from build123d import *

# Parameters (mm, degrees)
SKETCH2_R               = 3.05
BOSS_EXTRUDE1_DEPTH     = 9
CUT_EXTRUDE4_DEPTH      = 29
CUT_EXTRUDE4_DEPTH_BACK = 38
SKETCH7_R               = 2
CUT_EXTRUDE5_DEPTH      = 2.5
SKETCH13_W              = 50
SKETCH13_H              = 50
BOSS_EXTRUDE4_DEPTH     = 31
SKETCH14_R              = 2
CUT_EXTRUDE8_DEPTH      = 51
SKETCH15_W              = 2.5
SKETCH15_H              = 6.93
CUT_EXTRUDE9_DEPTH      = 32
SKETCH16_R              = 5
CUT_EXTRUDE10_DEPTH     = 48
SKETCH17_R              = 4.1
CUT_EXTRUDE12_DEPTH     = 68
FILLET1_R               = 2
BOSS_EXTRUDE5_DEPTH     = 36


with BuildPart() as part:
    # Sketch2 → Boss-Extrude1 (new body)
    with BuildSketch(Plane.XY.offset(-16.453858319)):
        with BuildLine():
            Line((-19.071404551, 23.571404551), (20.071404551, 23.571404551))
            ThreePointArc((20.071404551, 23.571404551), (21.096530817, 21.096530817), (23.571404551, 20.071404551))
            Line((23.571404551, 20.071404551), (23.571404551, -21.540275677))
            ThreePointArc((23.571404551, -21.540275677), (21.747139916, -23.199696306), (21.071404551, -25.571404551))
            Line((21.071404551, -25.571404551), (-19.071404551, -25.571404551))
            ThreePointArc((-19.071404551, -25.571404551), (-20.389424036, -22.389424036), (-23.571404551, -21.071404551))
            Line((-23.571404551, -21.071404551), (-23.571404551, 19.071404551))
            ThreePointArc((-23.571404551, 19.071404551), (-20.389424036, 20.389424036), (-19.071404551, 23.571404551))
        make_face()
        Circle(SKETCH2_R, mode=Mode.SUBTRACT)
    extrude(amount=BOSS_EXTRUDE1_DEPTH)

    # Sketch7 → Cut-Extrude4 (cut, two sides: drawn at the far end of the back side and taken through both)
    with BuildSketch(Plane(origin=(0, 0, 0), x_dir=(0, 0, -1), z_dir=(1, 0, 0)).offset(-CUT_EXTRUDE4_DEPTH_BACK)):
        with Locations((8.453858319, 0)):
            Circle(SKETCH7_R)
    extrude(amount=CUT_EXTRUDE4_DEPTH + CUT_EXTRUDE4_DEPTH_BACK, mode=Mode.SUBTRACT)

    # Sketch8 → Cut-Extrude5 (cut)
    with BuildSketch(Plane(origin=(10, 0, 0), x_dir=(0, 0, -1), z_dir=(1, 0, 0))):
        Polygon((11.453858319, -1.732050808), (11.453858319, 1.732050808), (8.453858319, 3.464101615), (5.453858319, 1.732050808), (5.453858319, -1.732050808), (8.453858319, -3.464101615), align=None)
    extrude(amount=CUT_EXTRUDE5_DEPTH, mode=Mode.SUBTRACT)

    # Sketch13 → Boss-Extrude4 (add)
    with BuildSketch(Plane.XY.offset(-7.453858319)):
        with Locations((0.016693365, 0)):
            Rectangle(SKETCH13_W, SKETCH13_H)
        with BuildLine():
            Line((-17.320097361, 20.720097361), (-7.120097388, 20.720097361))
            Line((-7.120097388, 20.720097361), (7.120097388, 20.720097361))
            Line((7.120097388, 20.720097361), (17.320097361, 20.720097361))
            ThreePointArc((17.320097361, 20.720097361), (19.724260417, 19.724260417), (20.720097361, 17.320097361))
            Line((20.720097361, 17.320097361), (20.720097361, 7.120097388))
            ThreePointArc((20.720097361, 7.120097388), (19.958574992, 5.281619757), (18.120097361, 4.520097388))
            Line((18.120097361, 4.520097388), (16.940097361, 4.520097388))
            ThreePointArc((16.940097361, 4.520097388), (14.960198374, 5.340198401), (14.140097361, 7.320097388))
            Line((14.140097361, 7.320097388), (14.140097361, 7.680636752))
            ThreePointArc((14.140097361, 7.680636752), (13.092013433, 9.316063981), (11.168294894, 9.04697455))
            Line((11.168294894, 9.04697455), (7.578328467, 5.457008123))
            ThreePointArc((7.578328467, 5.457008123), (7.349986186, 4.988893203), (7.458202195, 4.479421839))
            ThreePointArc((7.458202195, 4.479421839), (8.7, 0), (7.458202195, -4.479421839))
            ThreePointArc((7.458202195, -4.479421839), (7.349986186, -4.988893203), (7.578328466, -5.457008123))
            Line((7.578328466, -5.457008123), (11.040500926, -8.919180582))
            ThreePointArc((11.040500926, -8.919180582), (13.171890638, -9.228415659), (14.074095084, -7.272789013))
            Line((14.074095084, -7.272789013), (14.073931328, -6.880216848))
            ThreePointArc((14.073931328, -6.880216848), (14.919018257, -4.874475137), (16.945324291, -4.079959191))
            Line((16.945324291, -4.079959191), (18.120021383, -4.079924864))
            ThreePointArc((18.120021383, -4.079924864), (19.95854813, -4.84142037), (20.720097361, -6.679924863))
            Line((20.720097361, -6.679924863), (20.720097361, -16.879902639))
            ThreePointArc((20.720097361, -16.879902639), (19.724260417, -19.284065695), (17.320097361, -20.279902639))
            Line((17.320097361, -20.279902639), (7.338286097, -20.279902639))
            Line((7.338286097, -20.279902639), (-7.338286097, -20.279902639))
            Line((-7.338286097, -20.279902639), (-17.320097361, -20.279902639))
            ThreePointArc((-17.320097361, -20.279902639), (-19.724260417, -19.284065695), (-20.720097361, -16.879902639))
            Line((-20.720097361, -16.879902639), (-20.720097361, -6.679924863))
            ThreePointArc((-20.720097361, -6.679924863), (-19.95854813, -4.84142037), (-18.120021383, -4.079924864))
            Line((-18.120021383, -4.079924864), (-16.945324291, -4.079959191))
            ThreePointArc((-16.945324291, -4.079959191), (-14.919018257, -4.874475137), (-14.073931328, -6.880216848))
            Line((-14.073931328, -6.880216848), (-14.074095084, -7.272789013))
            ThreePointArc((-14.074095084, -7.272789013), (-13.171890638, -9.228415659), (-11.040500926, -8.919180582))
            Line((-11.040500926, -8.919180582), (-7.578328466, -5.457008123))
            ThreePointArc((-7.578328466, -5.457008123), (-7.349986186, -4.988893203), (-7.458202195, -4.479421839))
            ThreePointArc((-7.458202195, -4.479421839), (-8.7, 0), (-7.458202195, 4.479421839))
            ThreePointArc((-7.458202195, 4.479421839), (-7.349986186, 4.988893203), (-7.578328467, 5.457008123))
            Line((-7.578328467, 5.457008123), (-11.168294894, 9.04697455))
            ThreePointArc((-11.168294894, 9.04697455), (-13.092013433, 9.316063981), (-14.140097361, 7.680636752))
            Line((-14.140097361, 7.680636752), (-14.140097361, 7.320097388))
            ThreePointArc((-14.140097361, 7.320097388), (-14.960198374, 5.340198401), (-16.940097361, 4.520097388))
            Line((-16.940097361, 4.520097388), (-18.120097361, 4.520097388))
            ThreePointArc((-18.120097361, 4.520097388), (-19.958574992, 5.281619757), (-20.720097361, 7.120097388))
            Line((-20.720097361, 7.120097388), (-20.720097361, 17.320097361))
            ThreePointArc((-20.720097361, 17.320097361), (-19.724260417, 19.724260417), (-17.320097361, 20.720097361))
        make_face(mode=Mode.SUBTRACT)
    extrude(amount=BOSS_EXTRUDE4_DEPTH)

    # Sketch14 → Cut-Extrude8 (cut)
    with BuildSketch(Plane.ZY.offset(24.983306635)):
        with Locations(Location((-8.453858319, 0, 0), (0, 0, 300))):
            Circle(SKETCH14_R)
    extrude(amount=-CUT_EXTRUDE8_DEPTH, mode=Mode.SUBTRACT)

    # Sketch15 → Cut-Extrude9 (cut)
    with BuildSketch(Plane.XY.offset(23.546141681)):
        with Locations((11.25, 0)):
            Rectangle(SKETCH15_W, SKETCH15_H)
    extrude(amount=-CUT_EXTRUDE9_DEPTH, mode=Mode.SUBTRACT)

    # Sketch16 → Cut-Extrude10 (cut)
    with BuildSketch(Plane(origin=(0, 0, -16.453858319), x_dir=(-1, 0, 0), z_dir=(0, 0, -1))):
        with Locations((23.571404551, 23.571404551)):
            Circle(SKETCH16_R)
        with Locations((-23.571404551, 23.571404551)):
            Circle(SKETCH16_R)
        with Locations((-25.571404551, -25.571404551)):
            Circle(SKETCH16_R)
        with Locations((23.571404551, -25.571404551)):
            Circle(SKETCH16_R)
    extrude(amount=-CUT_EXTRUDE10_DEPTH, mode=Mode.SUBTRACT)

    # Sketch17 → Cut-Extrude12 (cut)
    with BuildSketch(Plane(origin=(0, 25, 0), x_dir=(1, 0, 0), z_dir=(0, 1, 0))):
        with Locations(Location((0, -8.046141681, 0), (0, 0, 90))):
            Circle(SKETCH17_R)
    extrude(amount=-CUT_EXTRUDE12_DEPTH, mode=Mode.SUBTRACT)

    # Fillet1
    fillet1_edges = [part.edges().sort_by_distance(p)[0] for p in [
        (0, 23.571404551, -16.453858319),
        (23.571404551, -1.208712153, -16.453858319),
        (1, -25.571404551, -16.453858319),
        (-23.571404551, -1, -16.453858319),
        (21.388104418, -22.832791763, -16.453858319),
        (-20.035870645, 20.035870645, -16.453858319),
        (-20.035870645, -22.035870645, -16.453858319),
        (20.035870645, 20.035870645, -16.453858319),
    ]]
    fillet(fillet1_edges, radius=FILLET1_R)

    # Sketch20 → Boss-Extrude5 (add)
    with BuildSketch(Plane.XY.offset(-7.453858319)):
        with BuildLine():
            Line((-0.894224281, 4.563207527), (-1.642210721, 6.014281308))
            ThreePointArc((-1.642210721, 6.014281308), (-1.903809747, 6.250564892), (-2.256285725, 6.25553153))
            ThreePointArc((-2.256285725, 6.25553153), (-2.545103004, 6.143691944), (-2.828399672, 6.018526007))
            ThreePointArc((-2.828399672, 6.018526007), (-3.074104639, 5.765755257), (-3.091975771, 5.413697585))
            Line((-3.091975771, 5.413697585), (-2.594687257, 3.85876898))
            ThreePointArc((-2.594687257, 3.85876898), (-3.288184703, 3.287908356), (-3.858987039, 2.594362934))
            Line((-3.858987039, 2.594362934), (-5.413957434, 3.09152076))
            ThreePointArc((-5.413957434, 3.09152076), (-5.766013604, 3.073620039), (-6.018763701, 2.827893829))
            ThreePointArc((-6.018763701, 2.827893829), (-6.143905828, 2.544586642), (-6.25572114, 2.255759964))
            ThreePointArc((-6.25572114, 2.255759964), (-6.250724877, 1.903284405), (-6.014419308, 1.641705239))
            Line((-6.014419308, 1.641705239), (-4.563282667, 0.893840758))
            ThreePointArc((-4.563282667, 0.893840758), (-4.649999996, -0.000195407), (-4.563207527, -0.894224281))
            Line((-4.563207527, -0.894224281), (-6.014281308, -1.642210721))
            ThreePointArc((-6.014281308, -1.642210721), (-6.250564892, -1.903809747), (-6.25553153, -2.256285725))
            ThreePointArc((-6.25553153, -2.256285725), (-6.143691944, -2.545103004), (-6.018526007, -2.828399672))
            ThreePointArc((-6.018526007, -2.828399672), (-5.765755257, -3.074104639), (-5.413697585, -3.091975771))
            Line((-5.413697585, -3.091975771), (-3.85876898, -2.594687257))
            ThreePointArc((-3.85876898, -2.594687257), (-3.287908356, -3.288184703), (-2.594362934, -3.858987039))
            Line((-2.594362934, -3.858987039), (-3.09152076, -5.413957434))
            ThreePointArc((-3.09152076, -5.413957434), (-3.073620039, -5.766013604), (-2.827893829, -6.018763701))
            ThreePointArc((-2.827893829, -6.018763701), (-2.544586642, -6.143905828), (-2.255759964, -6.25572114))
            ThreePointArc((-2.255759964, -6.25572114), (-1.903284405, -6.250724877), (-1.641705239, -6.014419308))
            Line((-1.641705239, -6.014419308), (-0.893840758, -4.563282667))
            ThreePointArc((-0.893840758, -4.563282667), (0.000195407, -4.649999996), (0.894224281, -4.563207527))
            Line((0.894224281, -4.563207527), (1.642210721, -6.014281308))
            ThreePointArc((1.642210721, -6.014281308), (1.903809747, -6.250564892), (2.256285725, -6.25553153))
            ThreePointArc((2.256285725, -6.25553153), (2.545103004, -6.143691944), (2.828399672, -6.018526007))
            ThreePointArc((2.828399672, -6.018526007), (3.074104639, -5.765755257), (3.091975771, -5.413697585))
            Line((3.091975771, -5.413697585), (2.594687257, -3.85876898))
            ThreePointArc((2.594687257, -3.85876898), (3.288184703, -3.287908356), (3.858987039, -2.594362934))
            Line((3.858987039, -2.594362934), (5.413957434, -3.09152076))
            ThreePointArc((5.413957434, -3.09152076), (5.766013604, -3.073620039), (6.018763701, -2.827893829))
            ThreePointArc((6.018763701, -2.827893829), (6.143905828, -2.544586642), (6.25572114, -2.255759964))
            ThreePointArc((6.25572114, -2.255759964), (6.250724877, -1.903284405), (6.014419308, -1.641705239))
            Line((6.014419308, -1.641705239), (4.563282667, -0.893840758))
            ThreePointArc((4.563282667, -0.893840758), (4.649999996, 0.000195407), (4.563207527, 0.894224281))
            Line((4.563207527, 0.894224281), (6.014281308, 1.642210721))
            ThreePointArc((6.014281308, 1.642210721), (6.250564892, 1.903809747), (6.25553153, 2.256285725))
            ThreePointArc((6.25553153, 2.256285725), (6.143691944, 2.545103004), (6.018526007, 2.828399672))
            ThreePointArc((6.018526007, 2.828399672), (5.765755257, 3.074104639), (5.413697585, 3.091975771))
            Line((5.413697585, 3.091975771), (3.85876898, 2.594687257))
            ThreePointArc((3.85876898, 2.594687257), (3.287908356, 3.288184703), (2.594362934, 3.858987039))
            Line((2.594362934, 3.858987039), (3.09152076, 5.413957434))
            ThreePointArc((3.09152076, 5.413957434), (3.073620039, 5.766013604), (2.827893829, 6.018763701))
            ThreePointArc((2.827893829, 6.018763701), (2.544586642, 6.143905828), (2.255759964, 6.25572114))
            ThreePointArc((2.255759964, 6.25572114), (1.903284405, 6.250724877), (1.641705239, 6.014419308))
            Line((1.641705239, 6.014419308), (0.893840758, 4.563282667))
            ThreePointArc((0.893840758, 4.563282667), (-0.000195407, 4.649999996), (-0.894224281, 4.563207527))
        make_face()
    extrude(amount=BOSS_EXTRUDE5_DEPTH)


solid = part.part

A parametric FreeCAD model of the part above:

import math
import FreeCAD as App
import Part
import Sketcher
Q = App.Units.Quantity


def edges_at(feature, points):
    """Names of the edges that pass closest to the given points."""
    edges = feature.Shape.Edges
    near = lambda p: min(range(len(edges)), key=lambda i: edges[i].distToShape(Part.Vertex(*p))[0])
    return sorted({f"Edge{near(p) + 1}" for p in points})

doc = App.newDocument("Part")
body = doc.addObject("PartDesign::Body", "Body")

# Sketch on XY plane
sketch1 = body.newObject("Sketcher::SketchObject", "Sketch")
sketch1.AttachmentSupport = (doc.getObject("XY_Plane"), [""])
sketch1.MapMode = "FlatFace"
sketch1.AttachmentOffset = App.Placement(App.Vector(0, 0, -16.453858), App.Rotation())
sketch1.addGeometry(Part.LineSegment(App.Vector(20.071405, 23.571405, 0), App.Vector(-19.071405, 23.571405, 0)), False)
sketch1.addGeometry(Part.ArcOfCircle(Part.Circle(App.Vector(-23.571405, 23.571405, 0), App.Vector(0, 0, 1), 4.5), math.radians(-90), math.radians(0)), False)
sketch1.addGeometry(Part.LineSegment(App.Vector(-23.571405, 19.071405, 0), App.Vector(-23.571405, -21.071405, 0)), False)
sketch1.addGeometry(Part.ArcOfCircle(Part.Circle(App.Vector(-23.571405, -25.571405, 0), App.Vector(0, 0, 1), 4.5), math.radians(0), math.radians(90)), False)
sketch1.addGeometry(Part.LineSegment(App.Vector(-19.071405, -25.571405, 0), App.Vector(21.071405, -25.571405, 0)), False)
sketch1.addGeometry(Part.ArcOfCircle(Part.Circle(App.Vector(25.571405, -25.571405, 0), App.Vector(0, 0, 1), 4.5), math.radians(116.3878), math.radians(180)), False)
sketch1.addGeometry(Part.LineSegment(App.Vector(23.571405, -21.540276, 0), App.Vector(23.571405, 20.071405, 0)), False)
sketch1.addGeometry(Part.ArcOfCircle(Part.Circle(App.Vector(23.571405, 23.571405, 0), App.Vector(0, 0, 1), 3.5), math.radians(-180), math.radians(-90)), False)
sketch1.addGeometry(Part.Circle(App.Vector(0, 0, 0), App.Vector(0, 0, 1), 3.05), False)
sketch1.addConstraint(Sketcher.Constraint("Coincident", 0, 2, 1, 2))
sketch1.addConstraint(Sketcher.Constraint("Coincident", 1, 1, 2, 1))
sketch1.addConstraint(Sketcher.Constraint("Coincident", 2, 2, 3, 2))
sketch1.addConstraint(Sketcher.Constraint("Coincident", 3, 1, 4, 1))
sketch1.addConstraint(Sketcher.Constraint("Coincident", 4, 2, 5, 2))
sketch1.addConstraint(Sketcher.Constraint("Coincident", 5, 1, 6, 1))
sketch1.addConstraint(Sketcher.Constraint("Coincident", 6, 2, 7, 2))
sketch1.addConstraint(Sketcher.Constraint("Coincident", 7, 1, 0, 1))
sketch1.addConstraint(Sketcher.Constraint("Horizontal", 0))
sketch1.addConstraint(Sketcher.Constraint("Vertical", 2))
sketch1.addConstraint(Sketcher.Constraint("Horizontal", 4))
sketch1.addConstraint(Sketcher.Constraint("Vertical", 6))
sketch1.addConstraint(Sketcher.Constraint("Coincident", 8, 3, -1, 1))
sketch1.addConstraint(Sketcher.Constraint("Equal", 1, 3))
sketch1.addConstraint(Sketcher.Constraint("Equal", 3, 5))
sketch1.addConstraint(Sketcher.Constraint("Symmetric", 1, 3, 7, 3, -2))
sketch1.addConstraint(Sketcher.Constraint("Horizontal", 3, 3, 5, 3))
sketch1.addConstraint(Sketcher.Constraint("Horizontal", 7, 3, 0, 2))
sketch1.addConstraint(Sketcher.Constraint("Horizontal", 5, 3, 3, 1))
sketch1.addConstraint(Sketcher.Constraint("Vertical", 1, 3, 3, 3))
sketch1.addConstraint(Sketcher.Constraint("Vertical", 3, 3, 1, 1))
sketch1.addConstraint(Sketcher.Constraint("Vertical", 7, 3, 5, 1))
sketch1.addConstraint(Sketcher.Constraint("Equal", 4, 2))
sketch1.addConstraint(Sketcher.Constraint("Diameter", 8, 6.1))
sketch1.addConstraint(Sketcher.Constraint("Radius", 1, 4.5))
sketch1.addConstraint(Sketcher.Constraint("Radius", 7, 3.5))
sketch1.addConstraint(Sketcher.Constraint("DistanceX", 7, 3, 5, 3, 2.0))
sketch1.addConstraint(Sketcher.Constraint("DistanceX", 0, 2, 0, 1, 39.142809))
sketch1.addConstraint(Sketcher.Constraint("DistanceY", -1, 1, 1, 3, 23.571405))
pad1 = body.newObject("PartDesign::Pad", "Pad")
pad1.Profile = sketch1
pad1.Length = 9

# Sketch on YZ plane
sketch2 = body.newObject("Sketcher::SketchObject", "Sketch001")
sketch2.AttachmentSupport = (doc.getObject("YZ_Plane"), [""])
sketch2.MapMode = "FlatFace"
sketch2.addGeometry(Part.Circle(App.Vector(0, -8.453858, 0), App.Vector(0, 0, 1), 2), False)
sketch2.addConstraint(Sketcher.Constraint("PointOnObject", 0, 3, -2))
sketch2.addConstraint(Sketcher.Constraint("Diameter", 0, 4.0))
sketch2.addConstraint(Sketcher.Constraint("DistanceY", 0, 3, -1, 1, 8.453858))
pocket1 = body.newObject("PartDesign::Pocket", "Pocket")
pocket1.Profile = sketch2
pocket1.Type = "ThroughAll"
pocket1.Midplane = True

# Sketch on YZ plane
sketch3 = body.newObject("Sketcher::SketchObject", "Sketch002")
sketch3.AttachmentSupport = (doc.getObject("YZ_Plane"), [""])
sketch3.MapMode = "FlatFace"
sketch3.AttachmentOffset = App.Placement(App.Vector(0, 0, 10), App.Rotation())
sketch3.addGeometry(Part.LineSegment(App.Vector(-1.732051, -11.453858, 0), App.Vector(1.732051, -11.453858, 0)), False)
sketch3.addGeometry(Part.LineSegment(App.Vector(1.732051, -11.453858, 0), App.Vector(3.464102, -8.453858, 0)), False)
sketch3.addGeometry(Part.LineSegment(App.Vector(3.464102, -8.453858, 0), App.Vector(1.732051, -5.453858, 0)), False)
sketch3.addGeometry(Part.LineSegment(App.Vector(1.732051, -5.453858, 0), App.Vector(-1.732051, -5.453858, 0)), False)
sketch3.addGeometry(Part.LineSegment(App.Vector(-1.732051, -5.453858, 0), App.Vector(-3.464102, -8.453858, 0)), False)
sketch3.addGeometry(Part.LineSegment(App.Vector(-3.464102, -8.453858, 0), App.Vector(-1.732051, -11.453858, 0)), False)
sketch3.addConstraint(Sketcher.Constraint("Coincident", 0, 2, 1, 1))
sketch3.addConstraint(Sketcher.Constraint("Coincident", 1, 2, 2, 1))
sketch3.addConstraint(Sketcher.Constraint("Coincident", 2, 2, 3, 1))
sketch3.addConstraint(Sketcher.Constraint("Coincident", 3, 2, 4, 1))
sketch3.addConstraint(Sketcher.Constraint("Coincident", 4, 2, 5, 1))
sketch3.addConstraint(Sketcher.Constraint("Coincident", 5, 2, 0, 1))
sketch3.addConstraint(Sketcher.Constraint("Horizontal", 0))
sketch3.addConstraint(Sketcher.Constraint("Horizontal", 3))
sketch3.addConstraint(Sketcher.Constraint("Symmetric", 1, 2, 4, 2, -2))
sketch3.addConstraint(Sketcher.Constraint("Parallel", 1, 4))
sketch3.addConstraint(Sketcher.Constraint("Parallel", 2, 5))
sketch3.addConstraint(Sketcher.Constraint("Vertical", 0, 2, 2, 2))
sketch3.addConstraint(Sketcher.Constraint("Vertical", 3, 2, 5, 2))
sketch3.addConstraint(Sketcher.Constraint("Angle", 1, Q("60 deg")))
sketch3.addConstraint(Sketcher.Constraint("DistanceY", 0, 2, 1, 2, 3.0))
sketch3.addConstraint(Sketcher.Constraint("DistanceX", 0, 1, 0, 2, 3.464102))
sketch3.addConstraint(Sketcher.Constraint("DistanceY", 0, 2, -1, 1, 11.453858))
pocket2 = body.newObject("PartDesign::Pocket", "Pocket001")
pocket2.Profile = sketch3
pocket2.Length = 2.5
pocket2.Reversed = True

# Sketch on XY plane
sketch4 = body.newObject("Sketcher::SketchObject", "Sketch003")
sketch4.AttachmentSupport = (doc.getObject("XY_Plane"), [""])
sketch4.MapMode = "FlatFace"
sketch4.AttachmentOffset = App.Placement(App.Vector(0, 0, -7.453858), App.Rotation())
sketch4.addGeometry(Part.LineSegment(App.Vector(-24.983307, 25, 0), App.Vector(-24.983307, -25, 0)), False)
sketch4.addGeometry(Part.LineSegment(App.Vector(-24.983307, -25, 0), App.Vector(25.016693, -25, 0)), False)
sketch4.addGeometry(Part.LineSegment(App.Vector(25.016693, -25, 0), App.Vector(25.016693, 25, 0)), False)
sketch4.addGeometry(Part.LineSegment(App.Vector(25.016693, 25, 0), App.Vector(-24.983307, 25, 0)), False)
sketch4.addGeometry(Part.ArcOfCircle(Part.Circle(App.Vector(-17.320097, 17.320097, 0), App.Vector(0, 0, 1), 3.4), math.radians(90), math.radians(180)), False)
sketch4.addGeometry(Part.LineSegment(App.Vector(-17.320097, 20.720097, 0), App.Vector(17.320097, 20.720097, 0)), False)
sketch4.addGeometry(Part.ArcOfCircle(Part.Circle(App.Vector(17.320097, 17.320097, 0), App.Vector(0, 0, 1), 3.4), math.radians(0), math.radians(90)), False)
sketch4.addGeometry(Part.LineSegment(App.Vector(20.720097, 17.320097, 0), App.Vector(20.720097, 7.120097, 0)), False)
sketch4.addGeometry(Part.ArcOfCircle(Part.Circle(App.Vector(18.120097, 7.120097, 0), App.Vector(0, 0, 1), 2.6), math.radians(-90), math.radians(0)), False)
sketch4.addGeometry(Part.LineSegment(App.Vector(18.120097, 4.520097, 0), App.Vector(16.940097, 4.520097, 0)), False)
sketch4.addGeometry(Part.ArcOfCircle(Part.Circle(App.Vector(16.940097, 7.320097, 0), App.Vector(0, 0, 1), 2.8), math.radians(-180), math.radians(-90)), False)
sketch4.addGeometry(Part.LineSegment(App.Vector(14.140097, 7.320097, 0), App.Vector(14.140097, 7.680637, 0)), False)
sketch4.addGeometry(Part.ArcOfCircle(Part.Circle(App.Vector(12.340097, 7.680637, 0), App.Vector(0, 0, 1), 1.8), math.radians(0), math.radians(130.617144)), False)
sketch4.addGeometry(Part.LineSegment(App.Vector(11.168295, 9.046975, 0), App.Vector(7.578328, 5.457008, 0)), False)
sketch4.addGeometry(Part.ArcOfCircle(Part.Circle(App.Vector(8.144014, 4.891323, 0), App.Vector(0, 0, 1), 0.8), math.radians(135), math.radians(210.989172)), False)
sketch4.addGeometry(Part.ArcOfCircle(Part.Circle(App.Vector(0, 0, 0), App.Vector(0, 0, 1), 8.7), math.radians(-30.989172), math.radians(30.989172)), False)
sketch4.addGeometry(Part.ArcOfCircle(Part.Circle(App.Vector(8.144014, -4.891323, 0), App.Vector(0, 0, 1), 0.8), math.radians(149.010828), math.radians(225)), False)
sketch4.addGeometry(Part.LineSegment(App.Vector(7.578328, -5.457008, 0), App.Vector(11.040501, -8.919181, 0)), False)
sketch4.addGeometry(Part.ArcOfCircle(Part.Circle(App.Vector(12.313293, -7.646388, 0), App.Vector(0, 0, 1), 1.8), math.radians(-135), math.radians(11.979119)), False)
sketch4.addGeometry(Part.LineSegment(App.Vector(14.074095, -7.272789, 0), App.Vector(14.073931, -6.880217, 0)), False)
sketch4.addGeometry(Part.ArcOfCircle(Part.Circle(App.Vector(16.873931, -6.879049, 0), App.Vector(0, 0, 1), 2.8), math.radians(88.538938), math.radians(180.0239)), False)
sketch4.addGeometry(Part.LineSegment(App.Vector(16.945324, -4.079959, 0), App.Vector(18.120021, -4.079925, 0)), False)
sketch4.addGeometry(Part.ArcOfCircle(Part.Circle(App.Vector(18.120097, -6.679925, 0), App.Vector(0, 0, 1), 2.6), math.radians(0), math.radians(90.001674)), False)
sketch4.addGeometry(Part.LineSegment(App.Vector(20.720097, -6.679925, 0), App.Vector(20.720097, -16.879903, 0)), False)
sketch4.addGeometry(Part.ArcOfCircle(Part.Circle(App.Vector(17.320097, -16.879903, 0), App.Vector(0, 0, 1), 3.4), math.radians(-90), math.radians(0)), False)
sketch4.addGeometry(Part.LineSegment(App.Vector(17.320097, -20.279903, 0), App.Vector(-17.320097, -20.279903, 0)), False)
sketch4.addGeometry(Part.ArcOfCircle(Part.Circle(App.Vector(-17.320097, -16.879903, 0), App.Vector(0, 0, 1), 3.4), math.radians(180), math.radians(270)), False)
sketch4.addGeometry(Part.LineSegment(App.Vector(-20.720097, -16.879903, 0), App.Vector(-20.720097, -6.679925, 0)), False)
sketch4.addGeometry(Part.ArcOfCircle(Part.Circle(App.Vector(-18.120097, -6.679925, 0), App.Vector(0, 0, 1), 2.6), math.radians(89.998326), math.radians(180)), False)
sketch4.addGeometry(Part.LineSegment(App.Vector(-18.120021, -4.079925, 0), App.Vector(-16.945324, -4.079959, 0)), False)
sketch4.addGeometry(Part.ArcOfCircle(Part.Circle(App.Vector(-16.873931, -6.879049, 0), App.Vector(0, 0, 1), 2.8), math.radians(-0.0239), math.radians(91.461062)), False)
sketch4.addGeometry(Part.LineSegment(App.Vector(-14.073931, -6.880217, 0), App.Vector(-14.074095, -7.272789, 0)), False)
sketch4.addGeometry(Part.ArcOfCircle(Part.Circle(App.Vector(-12.313293, -7.646388, 0), App.Vector(0, 0, 1), 1.8), math.radians(168.020881), math.radians(315)), False)
sketch4.addGeometry(Part.LineSegment(App.Vector(-11.040501, -8.919181, 0), App.Vector(-7.578328, -5.457008, 0)), False)
sketch4.addGeometry(Part.ArcOfCircle(Part.Circle(App.Vector(-8.144014, -4.891323, 0), App.Vector(0, 0, 1), 0.8), math.radians(-45), math.radians(30.989172)), False)
sketch4.addGeometry(Part.ArcOfCircle(Part.Circle(App.Vector(0, 0, 0), App.Vector(0, 0, 1), 8.7), math.radians(149.010828), math.radians(210.989172)), False)
sketch4.addGeometry(Part.ArcOfCircle(Part.Circle(App.Vector(-8.144014, 4.891323, 0), App.Vector(0, 0, 1), 0.8), math.radians(-30.989172), math.radians(45)), False)
sketch4.addGeometry(Part.LineSegment(App.Vector(-7.578328, 5.457008, 0), App.Vector(-11.168295, 9.046975, 0)), False)
sketch4.addGeometry(Part.ArcOfCircle(Part.Circle(App.Vector(-12.340097, 7.680637, 0), App.Vector(0, 0, 1), 1.8), math.radians(49.382856), math.radians(180)), False)
sketch4.addGeometry(Part.LineSegment(App.Vector(-14.140097, 7.680637, 0), App.Vector(-14.140097, 7.320097, 0)), False)
sketch4.addGeometry(Part.ArcOfCircle(Part.Circle(App.Vector(-16.940097, 7.320097, 0), App.Vector(0, 0, 1), 2.8), math.radians(-90), math.radians(0)), False)
sketch4.addGeometry(Part.LineSegment(App.Vector(-16.940097, 4.520097, 0), App.Vector(-18.120097, 4.520097, 0)), False)
sketch4.addGeometry(Part.ArcOfCircle(Part.Circle(App.Vector(-18.120097, 7.120097, 0), App.Vector(0, 0, 1), 2.6), math.radians(180), math.radians(270)), False)
sketch4.addGeometry(Part.LineSegment(App.Vector(-20.720097, 7.120097, 0), App.Vector(-20.720097, 17.320097, 0)), False)
sketch4.addConstraint(Sketcher.Constraint("Coincident", 0, 2, 1, 1))
sketch4.addConstraint(Sketcher.Constraint("Coincident", 1, 2, 2, 1))
sketch4.addConstraint(Sketcher.Constraint("Coincident", 2, 2, 3, 1))
sketch4.addConstraint(Sketcher.Constraint("Coincident", 3, 2, 0, 1))
sketch4.addConstraint(Sketcher.Constraint("Tangent", 4, 1, 5, 1))
sketch4.addConstraint(Sketcher.Constraint("Tangent", 5, 2, 6, 2))
sketch4.addConstraint(Sketcher.Constraint("Tangent", 6, 1, 7, 1))
sketch4.addConstraint(Sketcher.Constraint("Tangent", 7, 2, 8, 2))
sketch4.addConstraint(Sketcher.Constraint("Tangent", 8, 1, 9, 1))
sketch4.addConstraint(Sketcher.Constraint("Tangent", 9, 2, 10, 2))
sketch4.addConstraint(Sketcher.Constraint("Tangent", 10, 1, 11, 1))
sketch4.addConstraint(Sketcher.Constraint("Tangent", 11, 2, 12, 1))
sketch4.addConstraint(Sketcher.Constraint("Coincident", 12, 2, 13, 1))
sketch4.addConstraint(Sketcher.Constraint("Tangent", 13, 2, 14, 1))
sketch4.addConstraint(Sketcher.Constraint("Tangent", 14, 2, 15, 2))
sketch4.addConstraint(Sketcher.Constraint("Tangent", 15, 1, 16, 1))
sketch4.addConstraint(Sketcher.Constraint("Tangent", 16, 2, 17, 1))
sketch4.addConstraint(Sketcher.Constraint("Tangent", 17, 2, 18, 1))
sketch4.addConstraint(Sketcher.Constraint("Coincident", 18, 2, 19, 1))
sketch4.addConstraint(Sketcher.Constraint("Tangent", 19, 2, 20, 2))
sketch4.addConstraint(Sketcher.Constraint("Coincident", 20, 1, 21, 1))
sketch4.addConstraint(Sketcher.Constraint("Tangent", 21, 2, 22, 2))
sketch4.addConstraint(Sketcher.Constraint("Tangent", 22, 1, 23, 1))
sketch4.addConstraint(Sketcher.Constraint("Tangent", 23, 2, 24, 2))
sketch4.addConstraint(Sketcher.Constraint("Tangent", 24, 1, 25, 1))
sketch4.addConstraint(Sketcher.Constraint("Tangent", 25, 2, 26, 2))
sketch4.addConstraint(Sketcher.Constraint("Tangent", 26, 1, 27, 1))
sketch4.addConstraint(Sketcher.Constraint("Tangent", 27, 2, 28, 2))
sketch4.addConstraint(Sketcher.Constraint("Tangent", 28, 1, 29, 1))
sketch4.addConstraint(Sketcher.Constraint("Coincident", 29, 2, 30, 2))
sketch4.addConstraint(Sketcher.Constraint("Tangent", 30, 1, 31, 1))
sketch4.addConstraint(Sketcher.Constraint("Coincident", 31, 2, 32, 1))
sketch4.addConstraint(Sketcher.Constraint("Tangent", 32, 2, 33, 1))
sketch4.addConstraint(Sketcher.Constraint("Tangent", 33, 2, 34, 1))
sketch4.addConstraint(Sketcher.Constraint("Tangent", 34, 2, 35, 2))
sketch4.addConstraint(Sketcher.Constraint("Tangent", 35, 1, 36, 1))
sketch4.addConstraint(Sketcher.Constraint("Tangent", 36, 2, 37, 1))
sketch4.addConstraint(Sketcher.Constraint("Coincident", 37, 2, 38, 1))
sketch4.addConstraint(Sketcher.Constraint("Tangent", 38, 2, 39, 1))
sketch4.addConstraint(Sketcher.Constraint("Tangent", 39, 2, 40, 2))
sketch4.addConstraint(Sketcher.Constraint("Tangent", 40, 1, 41, 1))
sketch4.addConstraint(Sketcher.Constraint("Tangent", 41, 2, 42, 2))
sketch4.addConstraint(Sketcher.Constraint("Tangent", 42, 1, 43, 1))
sketch4.addConstraint(Sketcher.Constraint("Tangent", 43, 2, 4, 2))
sketch4.addConstraint(Sketcher.Constraint("Vertical", 0))
sketch4.addConstraint(Sketcher.Constraint("Horizontal", 1))
sketch4.addConstraint(Sketcher.Constraint("Vertical", 2))
sketch4.addConstraint(Sketcher.Constraint("Horizontal", 3))
sketch4.addConstraint(Sketcher.Constraint("Horizontal", 5))
sketch4.addConstraint(Sketcher.Constraint("Vertical", 7))
sketch4.addConstraint(Sketcher.Constraint("Horizontal", 9))
sketch4.addConstraint(Sketcher.Constraint("Vertical", 11))
sketch4.addConstraint(Sketcher.Constraint("Vertical", 23))
sketch4.addConstraint(Sketcher.Constraint("Horizontal", 25))
sketch4.addConstraint(Sketcher.Constraint("Vertical", 27))
sketch4.addConstraint(Sketcher.Constraint("Vertical", 39))
sketch4.addConstraint(Sketcher.Constraint("Horizontal", 41))
sketch4.addConstraint(Sketcher.Constraint("Vertical", 43))
sketch4.addConstraint(Sketcher.Constraint("Coincident", 15, 3, -1, 1))
sketch4.addConstraint(Sketcher.Constraint("Coincident", 35, 3, -1, 1))
sketch4.addConstraint(Sketcher.Constraint("Equal", 4, 6))
sketch4.addConstraint(Sketcher.Constraint("Equal", 14, 16))
sketch4.addConstraint(Sketcher.Constraint("Equal", 12, 18))
sketch4.addConstraint(Sketcher.Constraint("Equal", 10, 20))
sketch4.addConstraint(Sketcher.Constraint("Equal", 8, 22))
sketch4.addConstraint(Sketcher.Constraint("Equal", 6, 24))
sketch4.addConstraint(Sketcher.Constraint("Equal", 24, 26))
sketch4.addConstraint(Sketcher.Constraint("Equal", 22, 28))
sketch4.addConstraint(Sketcher.Constraint("Equal", 20, 30))
sketch4.addConstraint(Sketcher.Constraint("Equal", 18, 32))
sketch4.addConstraint(Sketcher.Constraint("Equal", 16, 34))
sketch4.addConstraint(Sketcher.Constraint("Equal", 15, 35))
sketch4.addConstraint(Sketcher.Constraint("Equal", 34, 36))
sketch4.addConstraint(Sketcher.Constraint("Equal", 32, 38))
sketch4.addConstraint(Sketcher.Constraint("Equal", 30, 40))
sketch4.addConstraint(Sketcher.Constraint("Equal", 28, 42))
sketch4.addConstraint(Sketcher.Constraint("Symmetric", 13, 2, 33, 2, -1, 1))
sketch4.addConstraint(Sketcher.Constraint("Symmetric", 16, 2, 36, 2, -1, 1))
sketch4.addConstraint(Sketcher.Constraint("Symmetric", 22, 3, 28, 3, -2))
sketch4.addConstraint(Sketcher.Constraint("Symmetric", 20, 3, 30, 3, -2))
sketch4.addConstraint(Sketcher.Constraint("Symmetric", 18, 3, 32, 3, -2))
sketch4.addConstraint(Sketcher.Constraint("Symmetric", 12, 3, 38, 3, -2))
sketch4.addConstraint(Sketcher.Constraint("Symmetric", 8, 3, 42, 3, -2))
sketch4.addConstraint(Sketcher.Constraint("Perpendicular", 13, 17))
sketch4.addConstraint(Sketcher.Constraint("Horizontal", 16, 3, 34, 3))
sketch4.addConstraint(Sketcher.Constraint("Horizontal", 20, 1, 29, 2))
sketch4.addConstraint(Sketcher.Constraint("Horizontal", 19, 2, 30, 1))
sketch4.addConstraint(Sketcher.Constraint("Vertical", 8, 3, 22, 3))
sketch4.addConstraint(Sketcher.Constraint("Equal", 3, 0))
sketch4.addConstraint(Sketcher.Constraint("Radius", 4, 3.4))
sketch4.addConstraint(Sketcher.Constraint("Radius", 8, 2.6))
sketch4.addConstraint(Sketcher.Constraint("Radius", 10, 2.8))
sketch4.addConstraint(Sketcher.Constraint("Radius", 12, 1.8))
sketch4.addConstraint(Sketcher.Constraint("Radius", 14, 0.8))
sketch4.addConstraint(Sketcher.Constraint("Radius", 15, 8.7))
sketch4.addConstraint(Sketcher.Constraint("DistanceX", 1, 1, 1, 2, 50.0))
sketch4.addConstraint(Sketcher.Constraint("DistanceY", 7, 2, 7, 1, 10.2))
sketch4.addConstraint(Sketcher.Constraint("DistanceY", 0, 2, -1, 1, 25.0))
sketch4.addConstraint(Sketcher.Constraint("DistanceX", 9, 2, 9, 1, 1.18))
sketch4.addConstraint(Sketcher.Constraint("DistanceY", 11, 1, 11, 2, 0.360539))
sketch4.addConstraint(Sketcher.Constraint("DistanceX", -1, 1, 17, 2, 11.040501))
sketch4.addConstraint(Sketcher.Constraint("Distance", 13, 5.076979))
sketch4.addConstraint(Sketcher.Constraint("Distance", 17, 4.896251))
sketch4.addConstraint(Sketcher.Constraint("DistanceX", 5, 1, 5, 2, 34.640195))
sketch4.addConstraint(Sketcher.Constraint("DistanceY", 23, 2, 23, 1, 10.199978))
sketch4.addConstraint(Sketcher.Constraint("DistanceX", -1, 1, 20, 3, 16.873931))
sketch4.addConstraint(Sketcher.Constraint("DistanceY", 20, 3, -1, 1, 6.879049))
sketch4.addConstraint(Sketcher.Constraint("DistanceY", 18, 2, -1, 1, 7.272789))
sketch4.addConstraint(Sketcher.Constraint("DistanceY", 20, 1, -1, 1, 4.079959))
sketch4.addConstraint(Sketcher.Constraint("DistanceX", -1, 1, 21, 2, 18.120021))
sketch4.addConstraint(Sketcher.Constraint("DistanceX", 0, 2, -1, 1, 24.983307))
pad2 = body.newObject("PartDesign::Pad", "Pad001")
pad2.Profile = sketch4
pad2.Length = 31

# Sketch on YZ plane
sketch5 = body.newObject("Sketcher::SketchObject", "Sketch004")
sketch5.AttachmentSupport = (doc.getObject("YZ_Plane"), [""])
sketch5.MapMode = "FlatFace"
sketch5.AttachmentOffset = App.Placement(App.Vector(0, 0, -24.983307), App.Rotation())
sketch5.addGeometry(Part.Circle(App.Vector(0, -8.453858, 0), App.Vector(0, 0, 1), 2), False)
sketch5.addConstraint(Sketcher.Constraint("PointOnObject", 0, 3, -2))
sketch5.addConstraint(Sketcher.Constraint("Diameter", 0, 4.0))
sketch5.addConstraint(Sketcher.Constraint("DistanceY", 0, 3, -1, 1, 8.453858))
pocket3 = body.newObject("PartDesign::Pocket", "Pocket002")
pocket3.Profile = sketch5
pocket3.Length = 51
pocket3.Reversed = True

# Sketch on XY plane
sketch6 = body.newObject("Sketcher::SketchObject", "Sketch005")
sketch6.AttachmentSupport = (doc.getObject("XY_Plane"), [""])
sketch6.MapMode = "FlatFace"
sketch6.AttachmentOffset = App.Placement(App.Vector(0, 0, 23.546142), App.Rotation())
sketch6.addGeometry(Part.LineSegment(App.Vector(10, 3.465, 0), App.Vector(10, -3.465, 0)), False)
sketch6.addGeometry(Part.LineSegment(App.Vector(10, -3.465, 0), App.Vector(12.5, -3.465, 0)), False)
sketch6.addGeometry(Part.LineSegment(App.Vector(12.5, -3.465, 0), App.Vector(12.5, 3.465, 0)), False)
sketch6.addGeometry(Part.LineSegment(App.Vector(12.5, 3.465, 0), App.Vector(10, 3.465, 0)), False)
sketch6.addConstraint(Sketcher.Constraint("Coincident", 0, 2, 1, 1))
sketch6.addConstraint(Sketcher.Constraint("Coincident", 1, 2, 2, 1))
sketch6.addConstraint(Sketcher.Constraint("Coincident", 2, 2, 3, 1))
sketch6.addConstraint(Sketcher.Constraint("Coincident", 3, 2, 0, 1))
sketch6.addConstraint(Sketcher.Constraint("Vertical", 0))
sketch6.addConstraint(Sketcher.Constraint("Horizontal", 1))
sketch6.addConstraint(Sketcher.Constraint("Vertical", 2))
sketch6.addConstraint(Sketcher.Constraint("Horizontal", 3))
sketch6.addConstraint(Sketcher.Constraint("DistanceX", 1, 1, 1, 2, 2.5))
sketch6.addConstraint(Sketcher.Constraint("DistanceX", -1, 1, 0, 2, 10.0))
sketch6.addConstraint(Sketcher.Constraint("DistanceY", 0, 2, 0, 1, 6.93))
sketch6.addConstraint(Sketcher.Constraint("DistanceY", 0, 2, -1, 1, 3.465))
pocket4 = body.newObject("PartDesign::Pocket", "Pocket003")
pocket4.Profile = sketch6
pocket4.Length = 32

# Sketch on XY plane
sketch7 = body.newObject("Sketcher::SketchObject", "Sketch006")
sketch7.AttachmentSupport = (doc.getObject("XY_Plane"), [""])
sketch7.MapMode = "FlatFace"
sketch7.AttachmentOffset = App.Placement(App.Vector(0, 0, -16.453858), App.Rotation())
sketch7.addGeometry(Part.Circle(App.Vector(-23.571405, 23.571405, 0), App.Vector(0, 0, 1), 5), False)
sketch7.addGeometry(Part.Circle(App.Vector(23.571405, 23.571405, 0), App.Vector(0, 0, 1), 5), False)
sketch7.addGeometry(Part.Circle(App.Vector(25.571405, -25.571405, 0), App.Vector(0, 0, 1), 5), False)
sketch7.addGeometry(Part.Circle(App.Vector(-23.571405, -25.571405, 0), App.Vector(0, 0, 1), 5), False)
sketch7.addConstraint(Sketcher.Constraint("Equal", 0, 1))
sketch7.addConstraint(Sketcher.Constraint("Equal", 1, 2))
sketch7.addConstraint(Sketcher.Constraint("Equal", 2, 3))
sketch7.addConstraint(Sketcher.Constraint("Symmetric", 0, 3, 1, 3, -2))
sketch7.addConstraint(Sketcher.Constraint("Horizontal", 2, 3, 3, 3))
sketch7.addConstraint(Sketcher.Constraint("Vertical", 0, 3, 3, 3))
sketch7.addConstraint(Sketcher.Constraint("Diameter", 0, 10.0))
sketch7.addConstraint(Sketcher.Constraint("DistanceX", 1, 3, 2, 3, 2.0))
sketch7.addConstraint(Sketcher.Constraint("DistanceX", 0, 3, 1, 3, 47.142809))
sketch7.addConstraint(Sketcher.Constraint("DistanceY", 2, 3, 1, 3, 49.142809))
sketch7.addConstraint(Sketcher.Constraint("DistanceY", -1, 1, 0, 3, 23.571405))
pocket5 = body.newObject("PartDesign::Pocket", "Pocket004")
pocket5.Profile = sketch7
pocket5.Length = 48
pocket5.Reversed = True

# Sketch on XZ plane
sketch8 = body.newObject("Sketcher::SketchObject", "Sketch007")
sketch8.AttachmentSupport = (doc.getObject("XZ_Plane"), [""])
sketch8.MapMode = "FlatFace"
sketch8.AttachmentOffset = App.Placement(App.Vector(0, 0, -25), App.Rotation())
sketch8.addGeometry(Part.Circle(App.Vector(0, 8.046142, 0), App.Vector(0, 0, 1), 4.1), False)
sketch8.addConstraint(Sketcher.Constraint("PointOnObject", 0, 3, -2))
sketch8.addConstraint(Sketcher.Constraint("Diameter", 0, 8.2))
sketch8.addConstraint(Sketcher.Constraint("DistanceY", -1, 1, 0, 3, 8.046142))
pocket6 = body.newObject("PartDesign::Pocket", "Pocket005")
pocket6.Profile = sketch8
pocket6.Length = 68
pocket6.Reversed = True
doc.recompute()

fillet = body.newObject("PartDesign::Fillet", "Fillet")
fillet.Base = (pocket6, edges_at(pocket6, [
    (0, 23.571, -16.454),
    (23.571, -1.209, -16.454),
    (1, -25.571, -16.454),
    (-23.571, -1, -16.454),
    (21.388, -22.833, -16.454),
    (-20.036, 20.036, -16.454),
    (-20.036, -22.036, -16.454),
    (20.036, 20.036, -16.454),
]))
fillet.Radius = 2

# Sketch on XY plane
sketch9 = body.newObject("Sketcher::SketchObject", "Sketch008")
sketch9.AttachmentSupport = (doc.getObject("XY_Plane"), [""])
sketch9.MapMode = "FlatFace"
sketch9.AttachmentOffset = App.Placement(App.Vector(0, 0, -7.453858), App.Rotation())
sketch9.addGeometry(Part.LineSegment(App.Vector(-0.894224, 4.563208, 0), App.Vector(-1.642211, 6.014281, 0)), False)
sketch9.addGeometry(Part.ArcOfCircle(Part.Circle(App.Vector(-2.08664, 5.785191, 0), App.Vector(0, 0, 1), 0.5), math.radians(27.269792), math.radians(109.833689)), False)
sketch9.addGeometry(Part.ArcOfCircle(Part.Circle(App.Vector(0, 0, 0), App.Vector(0, 0, 1), 6.65), math.radians(109.833689), math.radians(115.171126)), False)
sketch9.addGeometry(Part.ArcOfCircle(Part.Circle(App.Vector(-2.615738, 5.566005, 0), App.Vector(0, 0, 1), 0.5), math.radians(115.171126), math.radians(197.735023)), False)
sketch9.addGeometry(Part.LineSegment(App.Vector(-3.091976, 5.413698, 0), App.Vector(-2.594687, 3.858769, 0)), False)
sketch9.addGeometry(Part.ArcOfCircle(Part.Circle(App.Vector(0, 0, 0), App.Vector(0, 0, 1), 4.65), math.radians(123.917408), math.radians(146.087408)), False)
sketch9.addGeometry(Part.LineSegment(App.Vector(-3.858987, 2.594363, 0), App.Vector(-5.413957, 3.091521, 0)), False)
sketch9.addGeometry(Part.ArcOfCircle(Part.Circle(App.Vector(-5.566225, 2.61527, 0), App.Vector(0, 0, 1), 0.5), math.radians(72.269792), math.radians(154.833689)), False)
sketch9.addGeometry(Part.ArcOfCircle(Part.Circle(App.Vector(0, 0, 0), App.Vector(0, 0, 1), 6.65), math.radians(154.833689), math.radians(160.171127)), False)
sketch9.addGeometry(Part.ArcOfCircle(Part.Circle(App.Vector(-5.785366, 2.086154, 0), App.Vector(0, 0, 1), 0.5), math.radians(160.171126), math.radians(242.735023)), False)
sketch9.addGeometry(Part.LineSegment(App.Vector(-6.014419, 1.641705, 0), App.Vector(-4.563283, 0.893841, 0)), False)
sketch9.addGeometry(Part.ArcOfCircle(Part.Circle(App.Vector(0, 0, 0), App.Vector(0, 0, 1), 4.65), math.radians(168.917408), math.radians(191.087408)), False)
sketch9.addGeometry(Part.LineSegment(App.Vector(-4.563208, -0.894224, 0), App.Vector(-6.014281, -1.642211, 0)), False)
sketch9.addGeometry(Part.ArcOfCircle(Part.Circle(App.Vector(-5.785191, -2.08664, 0), App.Vector(0, 0, 1), 0.5), math.radians(117.269792), math.radians(199.833689)), False)
sketch9.addGeometry(Part.ArcOfCircle(Part.Circle(App.Vector(0, 0, 0), App.Vector(0, 0, 1), 6.65), math.radians(-160.166311), math.radians(-154.828874)), False)
sketch9.addGeometry(Part.ArcOfCircle(Part.Circle(App.Vector(-5.566005, -2.615738, 0), App.Vector(0, 0, 1), 0.5), math.radians(-154.828874), math.radians(-72.264977)), False)
sketch9.addGeometry(Part.LineSegment(App.Vector(-5.413698, -3.091976, 0), App.Vector(-3.858769, -2.594687, 0)), False)
sketch9.addGeometry(Part.ArcOfCircle(Part.Circle(App.Vector(0, 0, 0), App.Vector(0, 0, 1), 4.65), math.radians(-146.082592), math.radians(-123.912592)), False)
sketch9.addGeometry(Part.LineSegment(App.Vector(-2.594363, -3.858987, 0), App.Vector(-3.091521, -5.413957, 0)), False)
sketch9.addGeometry(Part.ArcOfCircle(Part.Circle(App.Vector(-2.61527, -5.566225, 0), App.Vector(0, 0, 1), 0.5), math.radians(162.269792), math.radians(244.833689)), False)
sketch9.addGeometry(Part.ArcOfCircle(Part.Circle(App.Vector(0, 0, 0), App.Vector(0, 0, 1), 6.65), math.radians(-115.166311), math.radians(-109.828873)), False)
sketch9.addGeometry(Part.ArcOfCircle(Part.Circle(App.Vector(-2.086154, -5.785366, 0), App.Vector(0, 0, 1), 0.5), math.radians(-109.828874), math.radians(-27.264977)), False)
sketch9.addGeometry(Part.LineSegment(App.Vector(-1.641705, -6.014419, 0), App.Vector(-0.893841, -4.563283, 0)), False)
sketch9.addGeometry(Part.ArcOfCircle(Part.Circle(App.Vector(0, 0, 0), App.Vector(0, 0, 1), 4.65), math.radians(-101.082592), math.radians(-78.912592)), False)
sketch9.addGeometry(Part.LineSegment(App.Vector(0.894224, -4.563208, 0), App.Vector(1.642211, -6.014281, 0)), False)
sketch9.addGeometry(Part.ArcOfCircle(Part.Circle(App.Vector(2.08664, -5.785191, 0), App.Vector(0, 0, 1), 0.5), math.radians(-152.730208), math.radians(-70.166311)), False)
sketch9.addGeometry(Part.ArcOfCircle(Part.Circle(App.Vector(0, 0, 0), App.Vector(0, 0, 1), 6.65), math.radians(-70.166311), math.radians(-64.828874)), False)
sketch9.addGeometry(Part.ArcOfCircle(Part.Circle(App.Vector(2.615738, -5.566005, 0), App.Vector(0, 0, 1), 0.5), math.radians(-64.828874), math.radians(17.735023)), False)
sketch9.addGeometry(Part.LineSegment(App.Vector(3.091976, -5.413698, 0), App.Vector(2.594687, -3.858769, 0)), False)
sketch9.addGeometry(Part.ArcOfCircle(Part.Circle(App.Vector(0, 0, 0), App.Vector(0, 0, 1), 4.65), math.radians(-56.082592), math.radians(-33.912592)), False)
sketch9.addGeometry(Part.LineSegment(App.Vector(3.858987, -2.594363, 0), App.Vector(5.413957, -3.091521, 0)), False)
sketch9.addGeometry(Part.ArcOfCircle(Part.Circle(App.Vector(5.566225, -2.61527, 0), App.Vector(0, 0, 1), 0.5), math.radians(-107.730208), math.radians(-25.166311)), False)
sketch9.addGeometry(Part.ArcOfCircle(Part.Circle(App.Vector(0, 0, 0), App.Vector(0, 0, 1), 6.65), math.radians(-25.166311), math.radians(-19.828873)), False)
sketch9.addGeometry(Part.ArcOfCircle(Part.Circle(App.Vector(5.785366, -2.086154, 0), App.Vector(0, 0, 1), 0.5), math.radians(-19.828874), math.radians(62.735023)), False)
sketch9.addGeometry(Part.LineSegment(App.Vector(6.014419, -1.641705, 0), App.Vector(4.563283, -0.893841, 0)), False)
sketch9.addGeometry(Part.ArcOfCircle(Part.Circle(App.Vector(0, 0, 0), App.Vector(0, 0, 1), 4.65), math.radians(-11.082592), math.radians(11.087408)), False)
sketch9.addGeometry(Part.LineSegment(App.Vector(4.563208, 0.894224, 0), App.Vector(6.014281, 1.642211, 0)), False)
sketch9.addGeometry(Part.ArcOfCircle(Part.Circle(App.Vector(5.785191, 2.08664, 0), App.Vector(0, 0, 1), 0.5), math.radians(-62.730208), math.radians(19.833689)), False)
sketch9.addGeometry(Part.ArcOfCircle(Part.Circle(App.Vector(0, 0, 0), App.Vector(0, 0, 1), 6.65), math.radians(19.833689), math.radians(25.171126)), False)
sketch9.addGeometry(Part.ArcOfCircle(Part.Circle(App.Vector(5.566005, 2.615738, 0), App.Vector(0, 0, 1), 0.5), math.radians(25.171126), math.radians(107.735023)), False)
sketch9.addGeometry(Part.LineSegment(App.Vector(5.413698, 3.091976, 0), App.Vector(3.858769, 2.594687, 0)), False)
sketch9.addGeometry(Part.ArcOfCircle(Part.Circle(App.Vector(0, 0, 0), App.Vector(0, 0, 1), 4.65), math.radians(33.917408), math.radians(56.087408)), False)
sketch9.addGeometry(Part.LineSegment(App.Vector(2.594363, 3.858987, 0), App.Vector(3.091521, 5.413957, 0)), False)
sketch9.addGeometry(Part.ArcOfCircle(Part.Circle(App.Vector(2.61527, 5.566225, 0), App.Vector(0, 0, 1), 0.5), math.radians(-17.730208), math.radians(64.833689)), False)
sketch9.addGeometry(Part.ArcOfCircle(Part.Circle(App.Vector(0, 0, 0), App.Vector(0, 0, 1), 6.65), math.radians(64.833689), math.radians(70.171127)), False)
sketch9.addGeometry(Part.ArcOfCircle(Part.Circle(App.Vector(2.086154, 5.785366, 0), App.Vector(0, 0, 1), 0.5), math.radians(70.171126), math.radians(152.735023)), False)
sketch9.addGeometry(Part.LineSegment(App.Vector(1.641705, 6.014419, 0), App.Vector(0.893841, 4.563283, 0)), False)
sketch9.addGeometry(Part.ArcOfCircle(Part.Circle(App.Vector(0, 0, 0), App.Vector(0, 0, 1), 4.65), math.radians(78.917408), math.radians(101.087408)), False)
sketch9.addConstraint(Sketcher.Constraint("Tangent", 0, 2, 1, 1))
sketch9.addConstraint(Sketcher.Constraint("Tangent", 1, 2, 2, 1))
sketch9.addConstraint(Sketcher.Constraint("Tangent", 2, 2, 3, 1))
sketch9.addConstraint(Sketcher.Constraint("Tangent", 3, 2, 4, 1))
sketch9.addConstraint(Sketcher.Constraint("Coincident", 4, 2, 5, 1))
sketch9.addConstraint(Sketcher.Constraint("Coincident", 5, 2, 6, 1))
sketch9.addConstraint(Sketcher.Constraint("Tangent", 6, 2, 7, 1))
sketch9.addConstraint(Sketcher.Constraint("Tangent", 7, 2, 8, 1))
sketch9.addConstraint(Sketcher.Constraint("Tangent", 8, 2, 9, 1))
sketch9.addConstraint(Sketcher.Constraint("Tangent", 9, 2, 10, 1))
sketch9.addConstraint(Sketcher.Constraint("Coincident", 10, 2, 11, 1))
sketch9.addConstraint(Sketcher.Constraint("Coincident", 11, 2, 12, 1))
sketch9.addConstraint(Sketcher.Constraint("Tangent", 12, 2, 13, 1))
sketch9.addConstraint(Sketcher.Constraint("Tangent", 13, 2, 14, 1))
sketch9.addConstraint(Sketcher.Constraint("Tangent", 14, 2, 15, 1))
sketch9.addConstraint(Sketcher.Constraint("Tangent", 15, 2, 16, 1))
sketch9.addConstraint(Sketcher.Constraint("Coincident", 16, 2, 17, 1))
sketch9.addConstraint(Sketcher.Constraint("Coincident", 17, 2, 18, 1))
sketch9.addConstraint(Sketcher.Constraint("Tangent", 18, 2, 19, 1))
sketch9.addConstraint(Sketcher.Constraint("Tangent", 19, 2, 20, 1))
sketch9.addConstraint(Sketcher.Constraint("Tangent", 20, 2, 21, 1))
sketch9.addConstraint(Sketcher.Constraint("Tangent", 21, 2, 22, 1))
sketch9.addConstraint(Sketcher.Constraint("Coincident", 22, 2, 23, 1))
sketch9.addConstraint(Sketcher.Constraint("Coincident", 23, 2, 24, 1))
sketch9.addConstraint(Sketcher.Constraint("Tangent", 24, 2, 25, 1))
sketch9.addConstraint(Sketcher.Constraint("Tangent", 25, 2, 26, 1))
sketch9.addConstraint(Sketcher.Constraint("Tangent", 26, 2, 27, 1))
sketch9.addConstraint(Sketcher.Constraint("Tangent", 27, 2, 28, 1))
sketch9.addConstraint(Sketcher.Constraint("Coincident", 28, 2, 29, 1))
sketch9.addConstraint(Sketcher.Constraint("Coincident", 29, 2, 30, 1))
sketch9.addConstraint(Sketcher.Constraint("Tangent", 30, 2, 31, 1))
sketch9.addConstraint(Sketcher.Constraint("Tangent", 31, 2, 32, 1))
sketch9.addConstraint(Sketcher.Constraint("Tangent", 32, 2, 33, 1))
sketch9.addConstraint(Sketcher.Constraint("Tangent", 33, 2, 34, 1))
sketch9.addConstraint(Sketcher.Constraint("Coincident", 34, 2, 35, 1))
sketch9.addConstraint(Sketcher.Constraint("Coincident", 35, 2, 36, 1))
sketch9.addConstraint(Sketcher.Constraint("Tangent", 36, 2, 37, 1))
sketch9.addConstraint(Sketcher.Constraint("Tangent", 37, 2, 38, 1))
sketch9.addConstraint(Sketcher.Constraint("Tangent", 38, 2, 39, 1))
sketch9.addConstraint(Sketcher.Constraint("Tangent", 39, 2, 40, 1))
sketch9.addConstraint(Sketcher.Constraint("Coincident", 40, 2, 41, 1))
sketch9.addConstraint(Sketcher.Constraint("Coincident", 41, 2, 42, 1))
sketch9.addConstraint(Sketcher.Constraint("Tangent", 42, 2, 43, 1))
sketch9.addConstraint(Sketcher.Constraint("Tangent", 43, 2, 44, 1))
sketch9.addConstraint(Sketcher.Constraint("Tangent", 44, 2, 45, 1))
sketch9.addConstraint(Sketcher.Constraint("Tangent", 45, 2, 46, 1))
sketch9.addConstraint(Sketcher.Constraint("Coincident", 46, 2, 47, 1))
sketch9.addConstraint(Sketcher.Constraint("Coincident", 47, 2, 0, 1))
sketch9.addConstraint(Sketcher.Constraint("Coincident", 2, 3, -1, 1))
sketch9.addConstraint(Sketcher.Constraint("Coincident", 5, 3, -1, 1))
sketch9.addConstraint(Sketcher.Constraint("Coincident", 8, 3, -1, 1))
sketch9.addConstraint(Sketcher.Constraint("Coincident", 11, 3, -1, 1))
sketch9.addConstraint(Sketcher.Constraint("Coincident", 14, 3, -1, 1))
sketch9.addConstraint(Sketcher.Constraint("Coincident", 17, 3, -1, 1))
sketch9.addConstraint(Sketcher.Constraint("Coincident", 20, 3, -1, 1))
sketch9.addConstraint(Sketcher.Constraint("Coincident", 23, 3, -1, 1))
sketch9.addConstraint(Sketcher.Constraint("Coincident", 26, 3, -1, 1))
sketch9.addConstraint(Sketcher.Constraint("Coincident", 29, 3, -1, 1))
sketch9.addConstraint(Sketcher.Constraint("Coincident", 32, 3, -1, 1))
sketch9.addConstraint(Sketcher.Constraint("Coincident", 35, 3, -1, 1))
sketch9.addConstraint(Sketcher.Constraint("Coincident", 38, 3, -1, 1))
sketch9.addConstraint(Sketcher.Constraint("Coincident", 41, 3, -1, 1))
sketch9.addConstraint(Sketcher.Constraint("Coincident", 44, 3, -1, 1))
sketch9.addConstraint(Sketcher.Constraint("Coincident", 47, 3, -1, 1))
sketch9.addConstraint(Sketcher.Constraint("Equal", 1, 3))
sketch9.addConstraint(Sketcher.Constraint("Equal", 3, 7))
sketch9.addConstraint(Sketcher.Constraint("Equal", 2, 8))
sketch9.addConstraint(Sketcher.Constraint("Equal", 7, 9))
sketch9.addConstraint(Sketcher.Constraint("Equal", 5, 11))
sketch9.addConstraint(Sketcher.Constraint("Equal", 9, 13))
sketch9.addConstraint(Sketcher.Constraint("Equal", 8, 14))
sketch9.addConstraint(Sketcher.Constraint("Equal", 13, 15))
sketch9.addConstraint(Sketcher.Constraint("Equal", 11, 17))
sketch9.addConstraint(Sketcher.Constraint("Equal", 15, 19))
sketch9.addConstraint(Sketcher.Constraint("Equal", 14, 20))
sketch9.addConstraint(Sketcher.Constraint("Equal", 19, 21))
sketch9.addConstraint(Sketcher.Constraint("Equal", 17, 23))
sketch9.addConstraint(Sketcher.Constraint("Equal", 21, 25))
sketch9.addConstraint(Sketcher.Constraint("Equal", 20, 26))
sketch9.addConstraint(Sketcher.Constraint("Equal", 25, 27))
sketch9.addConstraint(Sketcher.Constraint("Equal", 23, 29))
sketch9.addConstraint(Sketcher.Constraint("Equal", 27, 31))
sketch9.addConstraint(Sketcher.Constraint("Equal", 26, 32))
sketch9.addConstraint(Sketcher.Constraint("Equal", 31, 33))
sketch9.addConstraint(Sketcher.Constraint("Equal", 29, 35))
sketch9.addConstraint(Sketcher.Constraint("Equal", 33, 37))
sketch9.addConstraint(Sketcher.Constraint("Equal", 32, 38))
sketch9.addConstraint(Sketcher.Constraint("Equal", 37, 39))
sketch9.addConstraint(Sketcher.Constraint("Equal", 35, 41))
sketch9.addConstraint(Sketcher.Constraint("Equal", 39, 43))
sketch9.addConstraint(Sketcher.Constraint("Equal", 38, 44))
sketch9.addConstraint(Sketcher.Constraint("Equal", 43, 45))
sketch9.addConstraint(Sketcher.Constraint("Equal", 41, 47))
sketch9.addConstraint(Sketcher.Constraint("Symmetric", 0, 2, 24, 2, -1, 1))
sketch9.addConstraint(Sketcher.Constraint("Symmetric", 3, 2, 27, 2, -1, 1))
sketch9.addConstraint(Sketcher.Constraint("Symmetric", 6, 2, 30, 2, -1, 1))
sketch9.addConstraint(Sketcher.Constraint("Symmetric", 9, 2, 33, 2, -1, 1))
sketch9.addConstraint(Sketcher.Constraint("Symmetric", 12, 2, 36, 2, -1, 1))
sketch9.addConstraint(Sketcher.Constraint("Symmetric", 15, 2, 39, 2, -1, 1))
sketch9.addConstraint(Sketcher.Constraint("Symmetric", 18, 2, 42, 2, -1, 1))
sketch9.addConstraint(Sketcher.Constraint("Symmetric", 21, 2, 45, 2, -1, 1))
sketch9.addConstraint(Sketcher.Constraint("Perpendicular", 0, 12))
sketch9.addConstraint(Sketcher.Constraint("Perpendicular", 4, 16))
sketch9.addConstraint(Sketcher.Constraint("Perpendicular", 6, 18))
sketch9.addConstraint(Sketcher.Constraint("Perpendicular", 10, 22))
sketch9.addConstraint(Sketcher.Constraint("Equal", 0, 4))
sketch9.addConstraint(Sketcher.Constraint("Equal", 4, 6))
sketch9.addConstraint(Sketcher.Constraint("Equal", 6, 10))
sketch9.addConstraint(Sketcher.Constraint("Equal", 10, 12))
sketch9.addConstraint(Sketcher.Constraint("Equal", 12, 16))
sketch9.addConstraint(Sketcher.Constraint("Equal", 16, 18))
sketch9.addConstraint(Sketcher.Constraint("Equal", 18, 22))
sketch9.addConstraint(Sketcher.Constraint("Radius", 1, 0.5))
sketch9.addConstraint(Sketcher.Constraint("Radius", 2, 6.65))
sketch9.addConstraint(Sketcher.Constraint("Radius", 5, 4.65))
sketch9.addConstraint(Sketcher.Constraint("DistanceX", 2, 2, -1, 1, 2.8284))
sketch9.addConstraint(Sketcher.Constraint("DistanceX", 1, 3, -1, 1, 2.08664))
sketch9.addConstraint(Sketcher.Constraint("DistanceY", -1, 1, 7, 3, 2.61527))
sketch9.addConstraint(Sketcher.Constraint("DistanceX", 0, 2, -1, 1, 1.642211))
sketch9.addConstraint(Sketcher.Constraint("DistanceX", 8, 2, -1, 1, 6.255721))
pad3 = body.newObject("PartDesign::Pad", "Pad002")
pad3.Profile = sketch9
pad3.Length = 36

doc.recompute()
